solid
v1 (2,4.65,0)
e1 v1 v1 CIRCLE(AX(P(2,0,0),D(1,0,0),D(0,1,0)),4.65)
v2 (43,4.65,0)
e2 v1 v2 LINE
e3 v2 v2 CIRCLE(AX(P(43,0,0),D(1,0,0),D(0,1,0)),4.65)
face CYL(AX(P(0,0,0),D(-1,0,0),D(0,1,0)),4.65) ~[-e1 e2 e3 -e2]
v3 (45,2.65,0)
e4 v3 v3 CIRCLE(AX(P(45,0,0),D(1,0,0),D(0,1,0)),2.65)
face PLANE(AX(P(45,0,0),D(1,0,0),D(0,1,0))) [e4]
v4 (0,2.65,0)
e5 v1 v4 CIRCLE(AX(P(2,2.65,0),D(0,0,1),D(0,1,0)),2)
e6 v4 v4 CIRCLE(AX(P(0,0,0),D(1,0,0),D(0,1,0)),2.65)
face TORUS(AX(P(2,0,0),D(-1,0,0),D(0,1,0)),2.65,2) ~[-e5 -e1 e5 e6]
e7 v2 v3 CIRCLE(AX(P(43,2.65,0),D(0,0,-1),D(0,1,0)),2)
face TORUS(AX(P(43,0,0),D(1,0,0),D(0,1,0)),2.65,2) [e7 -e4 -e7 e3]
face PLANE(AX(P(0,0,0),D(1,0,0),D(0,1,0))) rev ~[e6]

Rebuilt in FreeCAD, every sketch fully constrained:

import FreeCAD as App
import Part
import Sketcher


def edges_at(feature, points):
    """Names of the edges that pass closest to the given points."""
    edges = feature.Shape.Edges
    near = lambda p: min(range(len(edges)), key=lambda i: edges[i].distToShape(Part.Vertex(*p))[0])
    return sorted({f"Edge{near(p) + 1}" for p in points})

doc = App.newDocument("Part")
body = doc.addObject("PartDesign::Body", "Body")

# Sketch on YZ plane
sketch1 = body.newObject("Sketcher::SketchObject", "Sketch")
sketch1.AttachmentSupport = (doc.getObject("YZ_Plane"), [""])
sketch1.MapMode = "FlatFace"
sketch1.addGeometry(Part.Circle(App.Vector(0, 0, 0), App.Vector(0, 0, 1), 4.7), False)
sketch1.addConstraint([
    Sketcher.Constraint("Coincident", 0, 3, -1, 1),
    Sketcher.Constraint("Diameter", 0, 9.3),
])
pad1 = body.newObject("PartDesign::Pad", "Pad")
pad1.Profile = sketch1
pad1.Length = 45
doc.recompute()

fillet = body.newObject("PartDesign::Fillet", "Fillet")
fillet.Base = (pad1, edges_at(pad1, [(0, -4.65, 0)]))
fillet.Radius = 2
doc.recompute()

fillet2 = body.newObject("PartDesign::Fillet", "Fillet001")
fillet2.Base = (fillet, edges_at(fillet, [(45, -4.65, 0)]))
fillet2.Radius = 2

doc.recompute()
